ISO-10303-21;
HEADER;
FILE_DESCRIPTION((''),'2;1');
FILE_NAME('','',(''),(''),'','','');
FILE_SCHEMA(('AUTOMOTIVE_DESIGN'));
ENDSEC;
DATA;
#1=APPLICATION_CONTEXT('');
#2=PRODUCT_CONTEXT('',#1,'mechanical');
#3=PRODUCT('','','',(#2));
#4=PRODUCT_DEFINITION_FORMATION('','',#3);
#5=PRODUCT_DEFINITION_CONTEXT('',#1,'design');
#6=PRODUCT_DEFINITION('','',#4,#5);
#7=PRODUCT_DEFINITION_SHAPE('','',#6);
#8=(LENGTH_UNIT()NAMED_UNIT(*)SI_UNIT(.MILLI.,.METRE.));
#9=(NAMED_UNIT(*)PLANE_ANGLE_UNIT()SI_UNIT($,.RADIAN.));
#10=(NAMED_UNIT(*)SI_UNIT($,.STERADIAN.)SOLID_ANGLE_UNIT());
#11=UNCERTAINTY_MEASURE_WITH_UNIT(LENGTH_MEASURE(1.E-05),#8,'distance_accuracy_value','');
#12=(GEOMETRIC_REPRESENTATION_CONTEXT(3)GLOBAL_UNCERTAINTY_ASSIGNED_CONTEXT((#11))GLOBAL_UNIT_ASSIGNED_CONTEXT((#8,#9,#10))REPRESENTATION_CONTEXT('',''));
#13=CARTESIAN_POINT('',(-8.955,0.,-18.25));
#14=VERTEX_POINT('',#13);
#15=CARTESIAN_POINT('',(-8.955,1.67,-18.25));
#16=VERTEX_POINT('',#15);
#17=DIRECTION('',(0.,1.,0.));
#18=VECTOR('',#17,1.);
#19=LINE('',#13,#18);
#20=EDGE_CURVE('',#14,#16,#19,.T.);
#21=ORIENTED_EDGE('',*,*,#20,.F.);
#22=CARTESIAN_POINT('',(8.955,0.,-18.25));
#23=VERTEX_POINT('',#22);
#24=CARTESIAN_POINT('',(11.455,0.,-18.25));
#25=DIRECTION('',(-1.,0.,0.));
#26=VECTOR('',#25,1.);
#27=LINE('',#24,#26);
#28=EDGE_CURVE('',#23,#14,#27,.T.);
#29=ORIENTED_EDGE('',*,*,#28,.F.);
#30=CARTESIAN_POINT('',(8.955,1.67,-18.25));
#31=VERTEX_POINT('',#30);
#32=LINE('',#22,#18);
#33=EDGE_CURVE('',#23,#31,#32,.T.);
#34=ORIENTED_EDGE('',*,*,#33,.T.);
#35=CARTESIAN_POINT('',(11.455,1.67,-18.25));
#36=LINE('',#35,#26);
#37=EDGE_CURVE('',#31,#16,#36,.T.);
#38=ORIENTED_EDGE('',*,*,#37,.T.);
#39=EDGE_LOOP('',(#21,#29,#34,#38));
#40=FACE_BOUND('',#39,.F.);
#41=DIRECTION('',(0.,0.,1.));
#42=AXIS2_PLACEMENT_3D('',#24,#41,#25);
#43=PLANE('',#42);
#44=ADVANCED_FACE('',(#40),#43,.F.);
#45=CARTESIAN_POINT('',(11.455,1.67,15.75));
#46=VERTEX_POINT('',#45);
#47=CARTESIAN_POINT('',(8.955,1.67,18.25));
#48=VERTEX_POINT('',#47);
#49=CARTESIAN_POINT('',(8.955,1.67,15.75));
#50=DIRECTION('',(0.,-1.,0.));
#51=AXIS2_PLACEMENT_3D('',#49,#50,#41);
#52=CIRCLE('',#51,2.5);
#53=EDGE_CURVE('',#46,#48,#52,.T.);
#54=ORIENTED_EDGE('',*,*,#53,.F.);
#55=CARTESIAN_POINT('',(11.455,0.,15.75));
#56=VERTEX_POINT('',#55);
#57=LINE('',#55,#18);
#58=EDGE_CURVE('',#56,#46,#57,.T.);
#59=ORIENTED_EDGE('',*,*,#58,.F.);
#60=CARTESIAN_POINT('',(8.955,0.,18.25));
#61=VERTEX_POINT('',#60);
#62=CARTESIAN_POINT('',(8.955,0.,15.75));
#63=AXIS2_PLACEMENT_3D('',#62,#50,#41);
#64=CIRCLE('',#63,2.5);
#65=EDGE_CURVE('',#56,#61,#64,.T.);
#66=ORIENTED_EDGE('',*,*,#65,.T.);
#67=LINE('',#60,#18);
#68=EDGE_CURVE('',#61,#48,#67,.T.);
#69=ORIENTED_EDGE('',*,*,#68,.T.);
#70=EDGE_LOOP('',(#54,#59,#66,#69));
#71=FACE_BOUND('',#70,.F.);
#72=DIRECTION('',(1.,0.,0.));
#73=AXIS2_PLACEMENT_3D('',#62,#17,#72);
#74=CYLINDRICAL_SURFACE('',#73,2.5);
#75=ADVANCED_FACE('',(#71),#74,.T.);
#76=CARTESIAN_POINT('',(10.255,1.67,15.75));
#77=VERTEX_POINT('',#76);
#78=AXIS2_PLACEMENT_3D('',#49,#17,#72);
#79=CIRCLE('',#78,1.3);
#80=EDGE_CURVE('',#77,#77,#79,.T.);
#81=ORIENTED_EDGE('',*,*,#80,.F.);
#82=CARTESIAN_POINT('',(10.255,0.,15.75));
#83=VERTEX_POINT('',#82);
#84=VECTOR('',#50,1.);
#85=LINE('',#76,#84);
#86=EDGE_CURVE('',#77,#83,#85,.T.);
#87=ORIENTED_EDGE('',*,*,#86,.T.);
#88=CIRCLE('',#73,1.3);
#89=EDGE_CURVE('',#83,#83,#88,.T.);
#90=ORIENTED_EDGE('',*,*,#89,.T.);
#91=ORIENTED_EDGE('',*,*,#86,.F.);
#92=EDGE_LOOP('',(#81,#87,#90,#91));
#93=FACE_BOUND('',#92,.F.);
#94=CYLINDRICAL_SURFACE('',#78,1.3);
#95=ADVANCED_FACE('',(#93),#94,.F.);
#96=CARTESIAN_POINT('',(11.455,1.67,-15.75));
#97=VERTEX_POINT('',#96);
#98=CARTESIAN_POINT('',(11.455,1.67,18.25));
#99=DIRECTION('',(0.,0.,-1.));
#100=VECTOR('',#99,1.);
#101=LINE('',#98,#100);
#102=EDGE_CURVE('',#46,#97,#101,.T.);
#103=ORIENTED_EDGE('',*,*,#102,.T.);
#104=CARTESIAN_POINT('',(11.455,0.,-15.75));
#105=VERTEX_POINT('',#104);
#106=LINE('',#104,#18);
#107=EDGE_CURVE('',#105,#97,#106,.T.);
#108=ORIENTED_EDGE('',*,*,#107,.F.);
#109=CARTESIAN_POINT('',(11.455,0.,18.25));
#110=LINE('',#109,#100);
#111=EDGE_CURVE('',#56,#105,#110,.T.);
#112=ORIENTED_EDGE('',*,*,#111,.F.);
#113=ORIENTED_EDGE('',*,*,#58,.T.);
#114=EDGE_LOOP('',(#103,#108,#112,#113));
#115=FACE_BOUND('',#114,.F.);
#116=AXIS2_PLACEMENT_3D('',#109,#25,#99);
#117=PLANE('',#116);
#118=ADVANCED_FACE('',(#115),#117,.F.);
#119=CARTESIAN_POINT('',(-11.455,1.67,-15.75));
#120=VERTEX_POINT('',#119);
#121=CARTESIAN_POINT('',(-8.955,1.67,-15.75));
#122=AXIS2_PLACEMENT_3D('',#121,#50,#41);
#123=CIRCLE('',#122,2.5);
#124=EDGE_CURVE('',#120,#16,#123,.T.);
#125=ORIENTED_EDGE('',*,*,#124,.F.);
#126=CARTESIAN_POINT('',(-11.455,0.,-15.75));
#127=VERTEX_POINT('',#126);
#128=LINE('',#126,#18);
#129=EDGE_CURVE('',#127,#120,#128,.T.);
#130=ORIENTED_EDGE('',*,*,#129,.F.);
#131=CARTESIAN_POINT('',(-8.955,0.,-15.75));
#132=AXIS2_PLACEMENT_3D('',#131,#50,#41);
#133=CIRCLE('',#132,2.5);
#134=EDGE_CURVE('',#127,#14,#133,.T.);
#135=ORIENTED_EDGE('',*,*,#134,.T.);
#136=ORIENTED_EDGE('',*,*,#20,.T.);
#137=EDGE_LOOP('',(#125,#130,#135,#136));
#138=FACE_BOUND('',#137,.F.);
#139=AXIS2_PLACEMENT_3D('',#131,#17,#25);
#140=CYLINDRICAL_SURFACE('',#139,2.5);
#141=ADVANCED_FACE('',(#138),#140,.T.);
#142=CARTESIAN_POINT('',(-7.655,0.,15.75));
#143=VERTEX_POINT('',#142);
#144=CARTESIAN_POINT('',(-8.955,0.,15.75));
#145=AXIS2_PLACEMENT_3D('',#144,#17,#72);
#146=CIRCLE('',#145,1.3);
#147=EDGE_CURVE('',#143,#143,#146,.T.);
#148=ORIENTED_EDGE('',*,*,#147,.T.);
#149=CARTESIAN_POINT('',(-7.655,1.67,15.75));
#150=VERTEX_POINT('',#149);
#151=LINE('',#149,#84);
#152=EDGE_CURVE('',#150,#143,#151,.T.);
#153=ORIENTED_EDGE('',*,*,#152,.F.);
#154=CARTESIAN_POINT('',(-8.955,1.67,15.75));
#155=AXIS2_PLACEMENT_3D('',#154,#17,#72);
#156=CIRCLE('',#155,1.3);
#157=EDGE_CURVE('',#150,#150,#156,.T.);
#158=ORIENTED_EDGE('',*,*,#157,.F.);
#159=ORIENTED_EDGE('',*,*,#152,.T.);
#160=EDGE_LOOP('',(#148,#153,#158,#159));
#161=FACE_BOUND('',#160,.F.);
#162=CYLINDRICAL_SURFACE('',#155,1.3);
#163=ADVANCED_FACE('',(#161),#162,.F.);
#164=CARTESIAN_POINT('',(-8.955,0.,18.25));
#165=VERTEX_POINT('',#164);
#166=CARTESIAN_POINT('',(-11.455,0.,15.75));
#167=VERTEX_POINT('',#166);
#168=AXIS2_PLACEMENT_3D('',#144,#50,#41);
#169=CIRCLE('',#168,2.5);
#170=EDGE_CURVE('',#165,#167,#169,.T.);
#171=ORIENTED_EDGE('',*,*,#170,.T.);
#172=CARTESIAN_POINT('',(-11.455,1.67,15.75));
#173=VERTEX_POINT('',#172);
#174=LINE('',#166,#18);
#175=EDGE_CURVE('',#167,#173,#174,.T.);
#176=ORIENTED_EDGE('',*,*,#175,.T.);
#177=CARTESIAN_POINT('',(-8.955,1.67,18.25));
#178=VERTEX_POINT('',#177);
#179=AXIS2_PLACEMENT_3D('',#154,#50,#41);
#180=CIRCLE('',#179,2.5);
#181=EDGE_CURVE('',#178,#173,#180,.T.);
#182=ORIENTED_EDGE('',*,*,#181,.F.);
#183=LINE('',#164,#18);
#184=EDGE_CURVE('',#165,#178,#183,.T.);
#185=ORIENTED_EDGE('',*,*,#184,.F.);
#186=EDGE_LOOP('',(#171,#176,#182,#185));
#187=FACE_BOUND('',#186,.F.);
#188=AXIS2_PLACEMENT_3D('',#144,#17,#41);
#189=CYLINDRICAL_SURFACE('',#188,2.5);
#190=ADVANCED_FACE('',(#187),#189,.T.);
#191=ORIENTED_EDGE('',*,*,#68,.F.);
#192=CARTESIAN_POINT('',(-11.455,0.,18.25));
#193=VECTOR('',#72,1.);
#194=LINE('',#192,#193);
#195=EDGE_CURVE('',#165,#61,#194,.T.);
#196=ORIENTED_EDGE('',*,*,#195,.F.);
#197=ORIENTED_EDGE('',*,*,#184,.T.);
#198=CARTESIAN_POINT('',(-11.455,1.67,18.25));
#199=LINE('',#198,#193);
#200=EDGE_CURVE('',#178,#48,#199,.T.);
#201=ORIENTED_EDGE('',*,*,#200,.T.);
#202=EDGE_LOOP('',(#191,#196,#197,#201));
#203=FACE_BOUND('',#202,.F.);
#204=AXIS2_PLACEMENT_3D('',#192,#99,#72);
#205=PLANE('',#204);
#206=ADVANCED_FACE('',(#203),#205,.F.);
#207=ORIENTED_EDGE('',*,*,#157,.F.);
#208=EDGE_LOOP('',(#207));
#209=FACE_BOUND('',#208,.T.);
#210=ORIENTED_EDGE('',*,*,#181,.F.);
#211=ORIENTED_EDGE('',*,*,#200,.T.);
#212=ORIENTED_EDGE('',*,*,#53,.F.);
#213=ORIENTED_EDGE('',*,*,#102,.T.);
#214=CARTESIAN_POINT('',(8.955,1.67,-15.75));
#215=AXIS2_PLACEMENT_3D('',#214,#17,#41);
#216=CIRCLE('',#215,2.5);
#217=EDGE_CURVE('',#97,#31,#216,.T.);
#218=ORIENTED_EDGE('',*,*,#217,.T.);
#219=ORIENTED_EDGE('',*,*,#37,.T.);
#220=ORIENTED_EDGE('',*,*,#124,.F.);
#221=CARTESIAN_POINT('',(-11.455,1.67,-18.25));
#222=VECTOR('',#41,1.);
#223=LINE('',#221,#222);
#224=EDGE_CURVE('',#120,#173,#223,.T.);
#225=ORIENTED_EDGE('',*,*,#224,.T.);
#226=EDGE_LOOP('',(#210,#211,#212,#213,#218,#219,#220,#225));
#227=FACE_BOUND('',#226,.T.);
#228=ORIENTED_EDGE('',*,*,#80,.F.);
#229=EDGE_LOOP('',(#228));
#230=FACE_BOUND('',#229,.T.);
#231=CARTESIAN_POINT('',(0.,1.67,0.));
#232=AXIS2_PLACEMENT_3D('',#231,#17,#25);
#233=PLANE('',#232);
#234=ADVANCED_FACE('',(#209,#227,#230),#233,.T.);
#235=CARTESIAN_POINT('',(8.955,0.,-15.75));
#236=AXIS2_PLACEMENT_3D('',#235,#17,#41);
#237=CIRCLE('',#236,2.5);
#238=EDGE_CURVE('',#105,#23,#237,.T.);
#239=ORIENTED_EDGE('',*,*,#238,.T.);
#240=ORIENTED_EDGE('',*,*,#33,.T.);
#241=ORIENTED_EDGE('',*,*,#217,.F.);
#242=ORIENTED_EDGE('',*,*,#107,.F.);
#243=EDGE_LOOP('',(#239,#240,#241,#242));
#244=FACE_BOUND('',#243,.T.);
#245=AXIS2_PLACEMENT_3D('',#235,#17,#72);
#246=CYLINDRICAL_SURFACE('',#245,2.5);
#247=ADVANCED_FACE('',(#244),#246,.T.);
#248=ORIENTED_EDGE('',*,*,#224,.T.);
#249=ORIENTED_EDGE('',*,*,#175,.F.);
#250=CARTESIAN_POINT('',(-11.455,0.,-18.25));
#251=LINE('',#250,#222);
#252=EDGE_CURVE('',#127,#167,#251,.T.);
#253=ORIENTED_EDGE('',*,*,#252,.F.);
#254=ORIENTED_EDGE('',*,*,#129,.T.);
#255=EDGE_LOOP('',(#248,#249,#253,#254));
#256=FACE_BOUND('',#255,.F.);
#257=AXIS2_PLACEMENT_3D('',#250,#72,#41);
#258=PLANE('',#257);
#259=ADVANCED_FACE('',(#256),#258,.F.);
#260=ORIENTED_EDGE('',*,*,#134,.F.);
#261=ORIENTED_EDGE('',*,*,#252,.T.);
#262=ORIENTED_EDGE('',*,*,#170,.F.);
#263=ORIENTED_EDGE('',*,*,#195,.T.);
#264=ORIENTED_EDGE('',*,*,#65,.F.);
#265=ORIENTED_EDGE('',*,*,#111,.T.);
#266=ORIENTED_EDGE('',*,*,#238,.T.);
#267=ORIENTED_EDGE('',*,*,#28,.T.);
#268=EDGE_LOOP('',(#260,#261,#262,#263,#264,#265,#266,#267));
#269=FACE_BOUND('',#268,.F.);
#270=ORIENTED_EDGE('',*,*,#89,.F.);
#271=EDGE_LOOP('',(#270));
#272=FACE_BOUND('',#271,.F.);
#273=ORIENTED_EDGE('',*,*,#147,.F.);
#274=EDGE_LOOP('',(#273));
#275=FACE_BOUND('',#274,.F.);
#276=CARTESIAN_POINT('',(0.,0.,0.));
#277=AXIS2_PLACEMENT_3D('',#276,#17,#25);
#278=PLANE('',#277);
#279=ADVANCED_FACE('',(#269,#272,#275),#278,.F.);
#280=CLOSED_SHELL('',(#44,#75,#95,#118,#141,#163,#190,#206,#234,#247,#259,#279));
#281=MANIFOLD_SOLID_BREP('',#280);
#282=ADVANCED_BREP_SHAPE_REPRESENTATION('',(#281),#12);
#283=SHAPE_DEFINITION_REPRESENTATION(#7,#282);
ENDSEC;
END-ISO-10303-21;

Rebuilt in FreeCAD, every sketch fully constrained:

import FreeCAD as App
import Part
import Sketcher
Q = App.Units.Quantity


def edges_at(feature, points):
    """Names of the edges that pass closest to the given points."""
    edges = feature.Shape.Edges
    near = lambda p: min(range(len(edges)), key=lambda i: edges[i].distToShape(Part.Vertex(*p))[0])
    return sorted({f"Edge{near(p) + 1}" for p in points})


def add_polygon(sketch, points):
    """Adds a closed chain of lines whose ends are joined by coincident constraints."""
    first, n = sketch.GeometryCount, len(points)
    for a, b in zip(points, points[1:] + points[:1]):
        sketch.addGeometry(Part.LineSegment(App.Vector(*a, 0), App.Vector(*b, 0)), False)
    for i in range(n):
        sketch.addConstraint(Sketcher.Constraint("Coincident", first + i, 2, first + (i + 1) % n, 1))

doc = App.newDocument("Part")
body = doc.addObject("PartDesign::Body", "Body")

sketch1 = body.newObject("Sketcher::SketchObject", "Sketch")
sketch1.AttachmentSupport = (doc.getObject("XZ_Plane"), [""])
sketch1.MapMode = "FlatFace"
add_polygon(sketch1, [(11.455, 18.25), (11.455, -18.25), (-11.455, -18.25), (-11.455, 18.25)])
sketch1.addConstraint([
    Sketcher.Constraint("Vertical", 0),
    Sketcher.Constraint("Horizontal", 1),
    Sketcher.Constraint("Vertical", 2),
    Sketcher.Constraint("Horizontal", 3),
    Sketcher.Constraint("Symmetric", 0, 2, 2, 2, -1, 1),
    Sketcher.Constraint("DistanceY", 0, 2, 0, 1, Q("36.5 mm")),
    Sketcher.Constraint("DistanceX", 1, 2, 1, 1, Q("22.91 mm")),
])
pad1 = body.newObject("PartDesign::Pad", "Pad")
pad1.Profile = sketch1
pad1.Length = 1.67
pad1.Reversed = True
doc.recompute()

fillet = body.newObject("PartDesign::Fillet", "Fillet")
fillet.Base = (pad1, edges_at(pad1, [
    (-11.455, 0.835, 18.25),
    (11.455, 0.835, -18.25),
    (11.455, 0.835, 18.25),
    (-11.455, 0.835, -18.25),
]))
fillet.Radius = 2.5

sketch2 = body.newObject("Sketcher::SketchObject", "Sketch001")
sketch2.AttachmentSupport = (doc.getObject("XZ_Plane"), [""])
sketch2.MapMode = "FlatFace"
sketch2.AttachmentOffset = App.Placement(App.Vector(0, 0, -1.67), App.Rotation())
sketch2.addGeometry([
    Part.Circle(App.Vector(-8.955, 15.75, 0), App.Vector(0, 0, 1), 1.3),
    Part.Circle(App.Vector(8.955, 15.75, 0), App.Vector(0, 0, 1), 1.3),
], False)
sketch2.addConstraint([
    Sketcher.Constraint("Equal", 0, 1),
    Sketcher.Constraint("Symmetric", 0, 3, 1, 3, -2),
    Sketcher.Constraint("Diameter", 0, Q("2.6 mm")),
    Sketcher.Constraint("DistanceX", 0, 3, 1, 3, Q("17.91 mm")),
    Sketcher.Constraint("DistanceY", -1, 1, 0, 3, Q("15.75 mm")),
])
pocket1 = body.newObject("PartDesign::Pocket", "Pocket")
pocket1.Profile = sketch2
pocket1.Type = "UpToFirst"
pocket1.Reversed = True

doc.recompute()
